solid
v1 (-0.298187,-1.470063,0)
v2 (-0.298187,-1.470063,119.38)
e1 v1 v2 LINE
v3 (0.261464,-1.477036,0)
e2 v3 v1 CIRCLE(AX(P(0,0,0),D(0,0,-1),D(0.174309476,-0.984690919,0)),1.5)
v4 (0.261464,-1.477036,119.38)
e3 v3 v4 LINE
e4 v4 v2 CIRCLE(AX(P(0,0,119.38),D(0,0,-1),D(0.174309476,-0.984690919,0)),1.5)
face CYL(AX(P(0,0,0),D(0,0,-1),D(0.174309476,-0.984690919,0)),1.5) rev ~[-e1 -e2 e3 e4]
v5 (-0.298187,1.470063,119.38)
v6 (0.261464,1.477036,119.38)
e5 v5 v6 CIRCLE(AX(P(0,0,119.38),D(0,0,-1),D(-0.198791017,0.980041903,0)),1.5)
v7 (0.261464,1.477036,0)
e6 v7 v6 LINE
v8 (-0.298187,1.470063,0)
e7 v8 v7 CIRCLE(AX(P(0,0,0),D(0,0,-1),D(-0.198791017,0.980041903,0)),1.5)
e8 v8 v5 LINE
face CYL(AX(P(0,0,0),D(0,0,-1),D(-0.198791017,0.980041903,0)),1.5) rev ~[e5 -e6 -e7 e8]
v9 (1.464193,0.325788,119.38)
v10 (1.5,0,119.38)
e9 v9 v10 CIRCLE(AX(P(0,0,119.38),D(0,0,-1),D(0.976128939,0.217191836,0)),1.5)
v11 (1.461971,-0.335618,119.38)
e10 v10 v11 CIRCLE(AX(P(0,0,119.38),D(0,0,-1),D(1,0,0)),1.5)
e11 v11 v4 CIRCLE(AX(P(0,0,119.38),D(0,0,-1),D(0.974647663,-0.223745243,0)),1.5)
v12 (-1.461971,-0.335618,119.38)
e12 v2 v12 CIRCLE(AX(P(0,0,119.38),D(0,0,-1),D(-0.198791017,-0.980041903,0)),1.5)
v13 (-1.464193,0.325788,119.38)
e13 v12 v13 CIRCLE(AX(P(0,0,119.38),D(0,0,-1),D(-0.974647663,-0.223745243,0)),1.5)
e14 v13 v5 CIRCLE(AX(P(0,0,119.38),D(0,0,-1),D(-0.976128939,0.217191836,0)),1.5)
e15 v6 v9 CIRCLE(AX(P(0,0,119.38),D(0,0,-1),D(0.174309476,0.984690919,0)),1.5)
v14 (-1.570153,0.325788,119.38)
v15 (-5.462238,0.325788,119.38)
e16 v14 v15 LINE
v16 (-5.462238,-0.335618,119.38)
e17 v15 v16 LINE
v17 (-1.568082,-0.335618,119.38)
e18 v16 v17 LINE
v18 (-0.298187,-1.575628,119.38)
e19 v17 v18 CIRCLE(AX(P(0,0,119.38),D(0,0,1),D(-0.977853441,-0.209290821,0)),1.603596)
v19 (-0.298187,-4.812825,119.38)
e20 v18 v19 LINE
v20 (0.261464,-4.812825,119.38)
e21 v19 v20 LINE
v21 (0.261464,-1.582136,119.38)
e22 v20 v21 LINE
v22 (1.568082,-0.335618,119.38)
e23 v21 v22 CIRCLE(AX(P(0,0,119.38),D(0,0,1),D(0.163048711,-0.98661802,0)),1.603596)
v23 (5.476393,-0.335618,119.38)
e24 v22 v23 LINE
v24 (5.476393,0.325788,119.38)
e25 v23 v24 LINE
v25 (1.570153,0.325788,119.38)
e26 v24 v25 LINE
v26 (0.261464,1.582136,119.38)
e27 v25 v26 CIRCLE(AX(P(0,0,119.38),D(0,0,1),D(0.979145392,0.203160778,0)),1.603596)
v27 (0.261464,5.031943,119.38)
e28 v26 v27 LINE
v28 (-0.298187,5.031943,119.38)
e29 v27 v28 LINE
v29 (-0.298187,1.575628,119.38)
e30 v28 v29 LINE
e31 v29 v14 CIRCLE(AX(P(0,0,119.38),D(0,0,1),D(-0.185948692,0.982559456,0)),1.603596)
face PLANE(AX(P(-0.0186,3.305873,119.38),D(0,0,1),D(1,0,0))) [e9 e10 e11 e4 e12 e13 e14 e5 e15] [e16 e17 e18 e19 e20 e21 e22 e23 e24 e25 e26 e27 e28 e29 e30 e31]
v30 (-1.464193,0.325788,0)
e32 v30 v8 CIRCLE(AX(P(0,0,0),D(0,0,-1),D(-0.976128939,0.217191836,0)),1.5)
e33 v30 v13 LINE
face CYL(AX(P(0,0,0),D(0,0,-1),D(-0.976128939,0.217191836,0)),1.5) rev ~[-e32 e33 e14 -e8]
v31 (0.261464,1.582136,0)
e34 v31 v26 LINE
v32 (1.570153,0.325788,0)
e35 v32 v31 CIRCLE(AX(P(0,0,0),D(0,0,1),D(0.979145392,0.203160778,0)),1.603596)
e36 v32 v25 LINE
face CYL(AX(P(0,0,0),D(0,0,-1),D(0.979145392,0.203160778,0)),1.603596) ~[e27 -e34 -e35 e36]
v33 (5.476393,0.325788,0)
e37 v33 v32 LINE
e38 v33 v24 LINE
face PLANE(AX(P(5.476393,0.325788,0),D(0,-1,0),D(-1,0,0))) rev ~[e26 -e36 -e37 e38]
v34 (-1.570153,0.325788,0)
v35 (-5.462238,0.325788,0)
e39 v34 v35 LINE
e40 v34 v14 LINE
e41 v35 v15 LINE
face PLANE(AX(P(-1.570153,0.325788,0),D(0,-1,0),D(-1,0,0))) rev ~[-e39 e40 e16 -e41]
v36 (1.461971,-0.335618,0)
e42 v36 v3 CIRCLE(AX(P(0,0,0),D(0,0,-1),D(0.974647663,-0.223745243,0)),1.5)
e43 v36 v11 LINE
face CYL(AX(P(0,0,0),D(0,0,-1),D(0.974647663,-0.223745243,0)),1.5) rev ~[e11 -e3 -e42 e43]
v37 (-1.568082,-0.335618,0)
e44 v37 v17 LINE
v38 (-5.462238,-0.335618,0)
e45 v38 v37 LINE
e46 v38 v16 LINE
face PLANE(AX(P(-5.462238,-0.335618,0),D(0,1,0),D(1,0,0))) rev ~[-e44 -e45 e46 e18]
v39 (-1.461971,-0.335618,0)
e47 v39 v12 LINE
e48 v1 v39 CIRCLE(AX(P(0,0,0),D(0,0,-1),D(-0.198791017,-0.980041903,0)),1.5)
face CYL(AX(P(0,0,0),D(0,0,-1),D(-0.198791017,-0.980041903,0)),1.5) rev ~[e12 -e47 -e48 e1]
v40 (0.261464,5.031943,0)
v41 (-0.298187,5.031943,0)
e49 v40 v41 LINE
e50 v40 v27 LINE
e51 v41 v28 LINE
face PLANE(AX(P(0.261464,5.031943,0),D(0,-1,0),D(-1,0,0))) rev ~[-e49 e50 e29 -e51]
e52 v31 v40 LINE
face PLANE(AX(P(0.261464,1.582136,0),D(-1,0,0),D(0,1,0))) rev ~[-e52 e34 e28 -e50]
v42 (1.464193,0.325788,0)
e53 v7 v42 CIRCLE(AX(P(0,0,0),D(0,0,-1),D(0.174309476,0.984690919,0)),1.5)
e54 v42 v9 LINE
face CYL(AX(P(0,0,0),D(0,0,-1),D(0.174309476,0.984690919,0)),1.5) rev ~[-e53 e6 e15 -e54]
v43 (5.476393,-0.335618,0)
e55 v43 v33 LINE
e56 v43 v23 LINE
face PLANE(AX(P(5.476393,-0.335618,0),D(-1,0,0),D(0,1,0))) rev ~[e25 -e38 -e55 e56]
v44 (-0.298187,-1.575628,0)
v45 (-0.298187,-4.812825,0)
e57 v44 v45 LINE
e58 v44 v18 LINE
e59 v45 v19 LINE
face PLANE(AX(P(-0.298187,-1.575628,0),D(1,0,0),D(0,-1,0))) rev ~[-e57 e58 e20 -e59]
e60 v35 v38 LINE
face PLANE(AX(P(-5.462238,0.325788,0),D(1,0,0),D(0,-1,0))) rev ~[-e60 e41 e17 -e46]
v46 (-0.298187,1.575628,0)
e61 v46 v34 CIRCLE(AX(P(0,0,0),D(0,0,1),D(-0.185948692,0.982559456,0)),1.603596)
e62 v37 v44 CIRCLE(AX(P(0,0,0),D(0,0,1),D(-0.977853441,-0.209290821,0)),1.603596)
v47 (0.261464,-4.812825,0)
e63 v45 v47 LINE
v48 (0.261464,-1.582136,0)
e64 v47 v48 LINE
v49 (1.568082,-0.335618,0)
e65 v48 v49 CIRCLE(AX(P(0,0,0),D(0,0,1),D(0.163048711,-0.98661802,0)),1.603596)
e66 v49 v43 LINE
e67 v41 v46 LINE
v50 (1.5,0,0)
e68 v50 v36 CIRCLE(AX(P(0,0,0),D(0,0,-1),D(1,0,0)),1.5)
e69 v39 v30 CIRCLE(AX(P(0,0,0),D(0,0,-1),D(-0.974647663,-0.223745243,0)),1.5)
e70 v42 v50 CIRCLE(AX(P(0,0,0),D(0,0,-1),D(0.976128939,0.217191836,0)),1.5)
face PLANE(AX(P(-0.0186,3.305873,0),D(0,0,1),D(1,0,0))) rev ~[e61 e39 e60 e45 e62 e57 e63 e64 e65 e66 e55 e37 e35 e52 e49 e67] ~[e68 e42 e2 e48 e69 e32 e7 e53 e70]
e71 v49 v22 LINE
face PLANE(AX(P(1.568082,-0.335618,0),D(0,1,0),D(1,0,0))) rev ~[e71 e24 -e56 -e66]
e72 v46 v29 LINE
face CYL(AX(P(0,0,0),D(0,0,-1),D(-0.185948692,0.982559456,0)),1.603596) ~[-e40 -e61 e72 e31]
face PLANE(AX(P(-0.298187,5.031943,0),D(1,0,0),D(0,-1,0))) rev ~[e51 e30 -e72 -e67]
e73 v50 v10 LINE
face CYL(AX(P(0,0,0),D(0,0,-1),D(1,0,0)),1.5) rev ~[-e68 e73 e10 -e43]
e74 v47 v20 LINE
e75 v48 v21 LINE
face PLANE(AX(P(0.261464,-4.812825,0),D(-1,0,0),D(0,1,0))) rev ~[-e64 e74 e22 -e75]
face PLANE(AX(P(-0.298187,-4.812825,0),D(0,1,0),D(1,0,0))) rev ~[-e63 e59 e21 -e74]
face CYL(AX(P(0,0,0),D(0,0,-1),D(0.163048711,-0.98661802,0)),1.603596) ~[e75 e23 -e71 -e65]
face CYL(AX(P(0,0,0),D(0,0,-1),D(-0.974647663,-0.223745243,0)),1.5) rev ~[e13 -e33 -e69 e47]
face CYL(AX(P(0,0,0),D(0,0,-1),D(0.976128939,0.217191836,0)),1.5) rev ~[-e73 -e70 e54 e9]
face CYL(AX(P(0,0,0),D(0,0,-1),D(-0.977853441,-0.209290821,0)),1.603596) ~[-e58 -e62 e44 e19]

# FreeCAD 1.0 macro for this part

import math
import FreeCAD as App
import Part
import Sketcher
from FreeCAD import Vector
Q = App.Units.Quantity

doc = App.newDocument("Part")
params = doc.addObject("Spreadsheet::Sheet", "Params")
for row, (alias, value) in enumerate([
    ("sketch1_radius", "1.5 mm"),
    ("pad1_length", "119.38 mm"),
], start=1):
    params.set(f"A{row}", alias)
    params.set(f"B{row}", "=" + value)
    params.setAlias(f"B{row}", alias)

body = doc.addObject("PartDesign::Body", "Body")

sketch1 = body.newObject("Sketcher::SketchObject", "Sketch")
sketch1.AttachmentSupport = (doc.getObject("XY_Plane"), [""])
sketch1.MapMode = "FlatFace"
sketch1.addGeometry([
    Part.LineSegment(Vector(0.261464, 1.582136, 0), Vector(0.261464, 5.031943, 0)),
    Part.LineSegment(Vector(0.261464, 5.031943, 0), Vector(-0.298187, 5.031943, 0)),
    Part.LineSegment(Vector(-0.298187, 5.031943, 0), Vector(-0.298187, 1.575628, 0)),
    Part.ArcOfCircle(Part.Circle(Vector(0, 0, 0), Vector(0, 0, 1), 1.603596), math.radians(100.716448), math.radians(168.278146)),
    Part.LineSegment(Vector(-1.570153, 0.325788, 0), Vector(-5.462238, 0.325788, 0)),
    Part.LineSegment(Vector(-5.462238, 0.325788, 0), Vector(-5.462238, -0.335618, 0)),
    Part.LineSegment(Vector(-5.462238, -0.335618, 0), Vector(-1.568082, -0.335618, 0)),
    Part.ArcOfCircle(Part.Circle(Vector(0, 0, 0), Vector(0, 0, 1), 1.603596), math.radians(-167.919204), math.radians(-100.716448)),
    Part.LineSegment(Vector(-0.298187, -1.575628, 0), Vector(-0.298187, -4.812825, 0)),
    Part.LineSegment(Vector(-0.298187, -4.812825, 0), Vector(0.261464, -4.812825, 0)),
    Part.LineSegment(Vector(0.261464, -4.812825, 0), Vector(0.261464, -1.582136, 0)),
    Part.ArcOfCircle(Part.Circle(Vector(0, 0, 0), Vector(0, 0, 1), 1.603596), math.radians(-80.616101), math.radians(-12.080796)),
    Part.LineSegment(Vector(1.568082, -0.335618, 0), Vector(5.476393, -0.335618, 0)),
    Part.LineSegment(Vector(5.476393, -0.335618, 0), Vector(5.476393, 0.325788, 0)),
    Part.LineSegment(Vector(5.476393, 0.325788, 0), Vector(1.570153, 0.325788, 0)),
    Part.ArcOfCircle(Part.Circle(Vector(0, 0, 0), Vector(0, 0, 1), 1.603596), math.radians(11.721854), math.radians(80.616101)),
    Part.ArcOfCircle(Part.Circle(Vector(0, 0, 0), Vector(0, 0, 1), 1.5), math.radians(-79.961524), math.radians(-12.929105)),
    Part.ArcOfCircle(Part.Circle(Vector(0, 0, 0), Vector(0, 0, 1), 1.5), math.radians(-101.46627), math.radians(-79.961524)),
    Part.ArcOfCircle(Part.Circle(Vector(0, 0, 0), Vector(0, 0, 1), 1.5), math.radians(-167.070895), math.radians(-101.46627)),
    Part.ArcOfCircle(Part.Circle(Vector(0, 0, 0), Vector(0, 0, 1), 1.5), math.radians(167.455851), math.radians(192.929105)),
    Part.ArcOfCircle(Part.Circle(Vector(0, 0, 0), Vector(0, 0, 1), 1.5), math.radians(101.46627), math.radians(167.455851)),
    Part.ArcOfCircle(Part.Circle(Vector(0, 0, 0), Vector(0, 0, 1), 1.5), math.radians(79.961524), math.radians(101.46627)),
    Part.ArcOfCircle(Part.Circle(Vector(0, 0, 0), Vector(0, 0, 1), 1.5), math.radians(12.544149), math.radians(79.961524)),
    Part.ArcOfCircle(Part.Circle(Vector(0, 0, 0), Vector(0, 0, 1), 1.5), math.radians(0), math.radians(12.544149)),
    Part.ArcOfCircle(Part.Circle(Vector(0, 0, 0), Vector(0, 0, 1), 1.5), math.radians(-12.929105), math.radians(0)),
], False)
sketch1.addConstraint([
    Sketcher.Constraint("Coincident", 0, 2, 1, 1),
    Sketcher.Constraint("Coincident", 1, 2, 2, 1),
    Sketcher.Constraint("Coincident", 2, 2, 3, 1),
    Sketcher.Constraint("Coincident", 3, 2, 4, 1),
    Sketcher.Constraint("Coincident", 4, 2, 5, 1),
    Sketcher.Constraint("Coincident", 5, 2, 6, 1),
    Sketcher.Constraint("Coincident", 6, 2, 7, 1),
    Sketcher.Constraint("Coincident", 7, 2, 8, 1),
    Sketcher.Constraint("Coincident", 8, 2, 9, 1),
    Sketcher.Constraint("Coincident", 9, 2, 10, 1),
    Sketcher.Constraint("Coincident", 10, 2, 11, 1),
    Sketcher.Constraint("Coincident", 11, 2, 12, 1),
    Sketcher.Constraint("Coincident", 12, 2, 13, 1),
    Sketcher.Constraint("Coincident", 13, 2, 14, 1),
    Sketcher.Constraint("Coincident", 14, 2, 15, 1),
    Sketcher.Constraint("Coincident", 15, 2, 0, 1),
    Sketcher.Constraint("Tangent", 16, 1, 17, 2),
    Sketcher.Constraint("Tangent", 17, 1, 18, 2),
    Sketcher.Constraint("Tangent", 18, 1, 19, 2),
    Sketcher.Constraint("Tangent", 19, 1, 20, 2),
    Sketcher.Constraint("Tangent", 20, 1, 21, 2),
    Sketcher.Constraint("Tangent", 21, 1, 22, 2),
    Sketcher.Constraint("Tangent", 22, 1, 23, 2),
    Sketcher.Constraint("Tangent", 23, 1, 24, 2),
    Sketcher.Constraint("Tangent", 24, 1, 16, 2),
    Sketcher.Constraint("Vertical", 0),
    Sketcher.Constraint("Horizontal", 1),
    Sketcher.Constraint("Vertical", 2),
    Sketcher.Constraint("Horizontal", 4),
    Sketcher.Constraint("Vertical", 5),
    Sketcher.Constraint("Horizontal", 6),
    Sketcher.Constraint("Vertical", 8),
    Sketcher.Constraint("Horizontal", 9),
    Sketcher.Constraint("Vertical", 10),
    Sketcher.Constraint("Horizontal", 12),
    Sketcher.Constraint("Vertical", 13),
    Sketcher.Constraint("Horizontal", 14),
    Sketcher.Constraint("Coincident", 3, 3, -1, 1),
    Sketcher.Constraint("Coincident", 7, 3, -1, 1),
    Sketcher.Constraint("Coincident", 11, 3, -1, 1),
    Sketcher.Constraint("Coincident", 15, 3, -1, 1),
    Sketcher.Constraint("Coincident", 16, 3, -1, 1),
    Sketcher.Constraint("Coincident", 18, 3, -1, 1),
    Sketcher.Constraint("Coincident", 20, 3, -1, 1),
    Sketcher.Constraint("Coincident", 22, 3, -1, 1),
    Sketcher.Constraint("Equal", 3, 7),
    Sketcher.Constraint("Equal", 7, 11),
    Sketcher.Constraint("Equal", 11, 15),
    Sketcher.Constraint("PointOnObject", 23, 1, -1),
    Sketcher.Constraint("Horizontal", 6, 2, 11, 2),
    Sketcher.Constraint("Horizontal", 4, 2, 13, 2),
    Sketcher.Constraint("Horizontal", 12, 2, 18, 1),
    Sketcher.Constraint("Horizontal", 14, 2, 19, 1),
    Sketcher.Constraint("Horizontal", 19, 1, 22, 1),
    Sketcher.Constraint("Horizontal", 18, 1, 24, 1),
    Sketcher.Constraint("Vertical", 2, 2, 7, 2),
    Sketcher.Constraint("Vertical", 0, 2, 9, 2),
    Sketcher.Constraint("Vertical", 15, 2, 16, 1),
    Sketcher.Constraint("Vertical", 8, 2, 17, 1),
    Sketcher.Constraint("Vertical", 17, 1, 20, 1),
    Sketcher.Constraint("Vertical", 16, 1, 21, 1),
    Sketcher.Constraint("Radius", 16, Q("1.5 mm")),
    Sketcher.Constraint("Radius", 3, Q("1.603596 mm")),
    Sketcher.Constraint("DistanceX", 1, 2, 1, 1, Q("0.559651 mm")),
    Sketcher.Constraint("DistanceX", 12, 1, 12, 2, Q("3.908311 mm")),
    Sketcher.Constraint("DistanceX", 14, 2, 14, 1, Q("3.906239 mm")),
    Sketcher.Constraint("DistanceY", 10, 1, 10, 2, Q("3.230688 mm")),
    Sketcher.Constraint("DistanceX", 4, 2, 4, 1, Q("3.892084 mm")),
    Sketcher.Constraint("DistanceY", 0, 1, 0, 2, Q("3.449806 mm")),
    Sketcher.Constraint("DistanceY", 2, 2, 2, 1, Q("3.456315 mm")),
    Sketcher.Constraint("DistanceY", 5, 2, 5, 1, Q("0.661406 mm")),
])
sketch1.setExpression("Constraints[61]", "Params.sketch1_radius")
pad1 = body.newObject("PartDesign::Pad", "Pad")
pad1.Profile = sketch1
pad1.setExpression("Length", "Params.pad1_length")

doc.recompute()
